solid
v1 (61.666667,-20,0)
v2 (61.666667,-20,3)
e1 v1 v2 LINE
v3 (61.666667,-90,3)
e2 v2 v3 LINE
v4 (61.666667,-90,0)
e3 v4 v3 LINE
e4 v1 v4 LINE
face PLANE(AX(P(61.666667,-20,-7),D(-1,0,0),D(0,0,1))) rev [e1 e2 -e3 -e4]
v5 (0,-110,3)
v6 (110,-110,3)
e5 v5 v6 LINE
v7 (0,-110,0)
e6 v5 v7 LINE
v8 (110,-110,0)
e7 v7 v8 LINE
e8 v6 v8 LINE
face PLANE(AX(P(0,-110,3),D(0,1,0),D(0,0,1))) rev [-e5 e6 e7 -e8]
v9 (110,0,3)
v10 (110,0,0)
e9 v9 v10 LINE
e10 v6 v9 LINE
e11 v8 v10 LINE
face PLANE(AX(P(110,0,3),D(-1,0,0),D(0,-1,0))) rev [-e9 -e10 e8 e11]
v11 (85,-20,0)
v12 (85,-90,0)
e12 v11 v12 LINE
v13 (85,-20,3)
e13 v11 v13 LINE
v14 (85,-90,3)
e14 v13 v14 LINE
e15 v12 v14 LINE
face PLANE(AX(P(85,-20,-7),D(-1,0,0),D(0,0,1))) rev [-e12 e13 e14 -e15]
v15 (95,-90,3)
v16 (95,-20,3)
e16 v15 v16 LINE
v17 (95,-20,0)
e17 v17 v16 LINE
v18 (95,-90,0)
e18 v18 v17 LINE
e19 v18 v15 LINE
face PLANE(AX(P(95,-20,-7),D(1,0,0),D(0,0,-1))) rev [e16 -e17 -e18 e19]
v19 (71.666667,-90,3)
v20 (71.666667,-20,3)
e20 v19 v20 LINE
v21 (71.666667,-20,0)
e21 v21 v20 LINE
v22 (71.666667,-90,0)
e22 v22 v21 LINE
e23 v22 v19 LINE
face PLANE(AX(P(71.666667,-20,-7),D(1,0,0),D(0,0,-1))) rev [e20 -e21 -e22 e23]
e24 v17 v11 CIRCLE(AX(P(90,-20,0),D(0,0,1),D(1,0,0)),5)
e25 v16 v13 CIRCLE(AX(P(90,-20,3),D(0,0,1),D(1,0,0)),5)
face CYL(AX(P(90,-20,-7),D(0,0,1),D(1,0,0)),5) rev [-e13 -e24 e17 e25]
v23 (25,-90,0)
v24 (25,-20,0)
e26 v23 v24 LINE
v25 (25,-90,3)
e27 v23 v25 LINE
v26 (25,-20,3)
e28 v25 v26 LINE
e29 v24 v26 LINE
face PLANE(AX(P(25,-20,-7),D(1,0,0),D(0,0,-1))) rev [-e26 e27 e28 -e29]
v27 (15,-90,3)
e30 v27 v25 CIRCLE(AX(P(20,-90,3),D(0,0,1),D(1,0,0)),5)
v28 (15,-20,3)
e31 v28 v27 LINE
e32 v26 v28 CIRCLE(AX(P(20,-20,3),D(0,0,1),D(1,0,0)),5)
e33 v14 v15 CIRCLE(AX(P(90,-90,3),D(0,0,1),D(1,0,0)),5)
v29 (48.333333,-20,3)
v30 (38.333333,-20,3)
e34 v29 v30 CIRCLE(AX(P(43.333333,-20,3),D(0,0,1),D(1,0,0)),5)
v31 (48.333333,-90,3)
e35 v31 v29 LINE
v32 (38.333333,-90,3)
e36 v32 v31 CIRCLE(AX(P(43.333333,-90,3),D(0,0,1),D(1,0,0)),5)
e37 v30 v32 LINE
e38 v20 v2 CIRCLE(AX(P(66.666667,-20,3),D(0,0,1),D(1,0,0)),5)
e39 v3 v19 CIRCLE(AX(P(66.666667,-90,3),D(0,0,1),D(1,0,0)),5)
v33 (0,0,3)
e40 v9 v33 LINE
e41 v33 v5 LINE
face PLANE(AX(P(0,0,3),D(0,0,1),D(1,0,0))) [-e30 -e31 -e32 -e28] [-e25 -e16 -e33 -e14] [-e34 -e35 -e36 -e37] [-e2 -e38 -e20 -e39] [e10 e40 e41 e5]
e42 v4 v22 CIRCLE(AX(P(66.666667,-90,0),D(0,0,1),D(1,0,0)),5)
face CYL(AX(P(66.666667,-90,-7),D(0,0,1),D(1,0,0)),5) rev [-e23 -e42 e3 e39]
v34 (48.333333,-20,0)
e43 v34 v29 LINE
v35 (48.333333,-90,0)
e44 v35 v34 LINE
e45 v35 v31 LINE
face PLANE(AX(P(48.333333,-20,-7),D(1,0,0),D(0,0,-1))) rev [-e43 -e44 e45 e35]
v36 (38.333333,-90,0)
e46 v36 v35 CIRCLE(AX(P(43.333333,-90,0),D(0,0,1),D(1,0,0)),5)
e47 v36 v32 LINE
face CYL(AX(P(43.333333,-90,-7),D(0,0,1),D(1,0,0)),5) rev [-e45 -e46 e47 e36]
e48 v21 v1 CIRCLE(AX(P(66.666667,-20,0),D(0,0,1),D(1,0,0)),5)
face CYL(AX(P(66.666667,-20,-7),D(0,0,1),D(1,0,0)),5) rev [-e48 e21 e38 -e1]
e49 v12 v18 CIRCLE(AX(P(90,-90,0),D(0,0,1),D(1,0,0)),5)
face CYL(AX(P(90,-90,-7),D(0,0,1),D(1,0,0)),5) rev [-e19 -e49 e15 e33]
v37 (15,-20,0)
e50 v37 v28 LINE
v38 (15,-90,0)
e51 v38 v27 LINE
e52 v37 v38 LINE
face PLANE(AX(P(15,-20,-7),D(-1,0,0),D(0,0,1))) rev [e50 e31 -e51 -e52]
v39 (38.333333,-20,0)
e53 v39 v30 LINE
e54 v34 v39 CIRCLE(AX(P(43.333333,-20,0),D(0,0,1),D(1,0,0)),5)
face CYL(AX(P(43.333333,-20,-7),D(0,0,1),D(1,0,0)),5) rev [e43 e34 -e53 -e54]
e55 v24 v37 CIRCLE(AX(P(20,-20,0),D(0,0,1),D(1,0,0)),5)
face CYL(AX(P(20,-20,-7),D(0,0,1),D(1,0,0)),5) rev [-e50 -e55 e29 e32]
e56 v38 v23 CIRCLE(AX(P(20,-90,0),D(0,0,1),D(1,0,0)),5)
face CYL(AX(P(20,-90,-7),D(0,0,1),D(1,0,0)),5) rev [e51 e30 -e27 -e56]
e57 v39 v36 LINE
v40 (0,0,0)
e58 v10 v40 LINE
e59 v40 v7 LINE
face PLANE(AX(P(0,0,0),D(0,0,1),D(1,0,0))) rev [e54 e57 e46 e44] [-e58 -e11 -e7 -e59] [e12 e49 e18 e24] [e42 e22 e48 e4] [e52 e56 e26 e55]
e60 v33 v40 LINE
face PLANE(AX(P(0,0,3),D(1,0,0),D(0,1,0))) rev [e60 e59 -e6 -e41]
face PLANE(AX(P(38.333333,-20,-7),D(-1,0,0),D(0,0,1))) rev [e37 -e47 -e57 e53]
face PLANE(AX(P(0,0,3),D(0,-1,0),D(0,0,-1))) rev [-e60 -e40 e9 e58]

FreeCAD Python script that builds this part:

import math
import FreeCAD as App
import Part
import Sketcher

V = App.Vector

doc = App.newDocument("Part")
params = doc.addObject("Spreadsheet::Sheet", "Params")
for row, (alias, value) in enumerate([
    ("sketch1_width", "110 mm"),
    ("pad1_length", "3 mm"),
    ("sketch2_radius", "5 mm"),
    ("sketch2_height", "70 mm"),
    ("pocket1_length", "10 mm"),
], start=1):
    params.set(f"A{row}", alias)
    params.set(f"B{row}", "=" + value)
    params.setAlias(f"B{row}", alias)

body = doc.addObject("PartDesign::Body", "Body")

# Sketch on XY plane
sketch1 = body.newObject("Sketcher::SketchObject", "Sketch")
sketch1.AttachmentSupport = (doc.getObject("XY_Plane"), [""])
sketch1.MapMode = "FlatFace"
sketch1.addGeometry(Part.LineSegment(V(0, 0, 0), V(0, -110, 0)), False)
sketch1.addGeometry(Part.LineSegment(V(0, -110, 0), V(110, -110, 0)), False)
sketch1.addGeometry(Part.LineSegment(V(110, -110, 0), V(110, 0, 0)), False)
sketch1.addGeometry(Part.LineSegment(V(110, 0, 0), V(0, 0, 0)), False)
sketch1.addConstraint(Sketcher.Constraint("Coincident", 0, 2, 1, 1))
sketch1.addConstraint(Sketcher.Constraint("Coincident", 1, 2, 2, 1))
sketch1.addConstraint(Sketcher.Constraint("Coincident", 2, 2, 3, 1))
sketch1.addConstraint(Sketcher.Constraint("Coincident", 3, 2, 0, 1))
sketch1.addConstraint(Sketcher.Constraint("Vertical", 0))
sketch1.addConstraint(Sketcher.Constraint("Horizontal", 1))
sketch1.addConstraint(Sketcher.Constraint("Vertical", 2))
sketch1.addConstraint(Sketcher.Constraint("Horizontal", 3))
sketch1.addConstraint(Sketcher.Constraint("Coincident", 3, 2, -1, 1))
sketch1.addConstraint(Sketcher.Constraint("Equal", 3, 0))
sketch1.addConstraint(Sketcher.Constraint("DistanceX", 1, 1, 1, 2, 110.0))
sketch1.setExpression("Constraints[10]", "Params.sketch1_width")
pad1 = body.newObject("PartDesign::Pad", "Pad")
pad1.Profile = sketch1
pad1.setExpression("Length", "Params.pad1_length")

# Sketch on XY plane
sketch2 = body.newObject("Sketcher::SketchObject", "Sketch001")
sketch2.AttachmentSupport = (doc.getObject("XY_Plane"), [""])
sketch2.MapMode = "FlatFace"
sketch2.AttachmentOffset = App.Placement(V(0, 0, 3), App.Rotation())
sketch2.addGeometry(Part.LineSegment(V(25, -90, 0), V(25, -20, 0)), False)
sketch2.addGeometry(Part.ArcOfCircle(Part.Circle(V(20, -20, 0), V(0, 0, 1), 5), math.radians(0), math.radians(180)), False)
sketch2.addGeometry(Part.LineSegment(V(15, -20, 0), V(15, -90, 0)), False)
sketch2.addGeometry(Part.ArcOfCircle(Part.Circle(V(20, -90, 0), V(0, 0, 1), 5), math.radians(180), math.radians(360)), False)
sketch2.addGeometry(Part.LineSegment(V(38, -20, 0), V(38, -90, 0)), False)
sketch2.addGeometry(Part.ArcOfCircle(Part.Circle(V(43, -90, 0), V(0, 0, 1), 5), math.radians(180), math.radians(360)), False)
sketch2.addGeometry(Part.LineSegment(V(48, -90, 0), V(48, -20, 0)), False)
sketch2.addGeometry(Part.ArcOfCircle(Part.Circle(V(43, -20, 0), V(0, 0, 1), 5), math.radians(0), math.radians(180)), False)
sketch2.addGeometry(Part.LineSegment(V(62, -20, 0), V(62, -90, 0)), False)
sketch2.addGeometry(Part.ArcOfCircle(Part.Circle(V(67, -90, 0), V(0, 0, 1), 5), math.radians(180), math.radians(360)), False)
sketch2.addGeometry(Part.LineSegment(V(72, -90, 0), V(72, -20, 0)), False)
sketch2.addGeometry(Part.ArcOfCircle(Part.Circle(V(67, -20, 0), V(0, 0, 1), 5), math.radians(0), math.radians(180)), False)
sketch2.addGeometry(Part.LineSegment(V(85, -20, 0), V(85, -90, 0)), False)
sketch2.addGeometry(Part.ArcOfCircle(Part.Circle(V(90, -90, 0), V(0, 0, 1), 5), math.radians(180), math.radians(360)), False)
sketch2.addGeometry(Part.LineSegment(V(95, -90, 0), V(95, -20, 0)), False)
sketch2.addGeometry(Part.ArcOfCircle(Part.Circle(V(90, -20, 0), V(0, 0, 1), 5), math.radians(0), math.radians(180)), False)
sketch2.addConstraint(Sketcher.Constraint("Tangent", 0, 2, 1, 1))
sketch2.addConstraint(Sketcher.Constraint("Tangent", 1, 2, 2, 1))
sketch2.addConstraint(Sketcher.Constraint("Tangent", 2, 2, 3, 1))
sketch2.addConstraint(Sketcher.Constraint("Tangent", 3, 2, 0, 1))
sketch2.addConstraint(Sketcher.Constraint("Tangent", 4, 2, 5, 1))
sketch2.addConstraint(Sketcher.Constraint("Tangent", 5, 2, 6, 1))
sketch2.addConstraint(Sketcher.Constraint("Tangent", 6, 2, 7, 1))
sketch2.addConstraint(Sketcher.Constraint("Tangent", 7, 2, 4, 1))
sketch2.addConstraint(Sketcher.Constraint("Tangent", 8, 2, 9, 1))
sketch2.addConstraint(Sketcher.Constraint("Tangent", 9, 2, 10, 1))
sketch2.addConstraint(Sketcher.Constraint("Tangent", 10, 2, 11, 1))
sketch2.addConstraint(Sketcher.Constraint("Tangent", 11, 2, 8, 1))
sketch2.addConstraint(Sketcher.Constraint("Tangent", 12, 2, 13, 1))
sketch2.addConstraint(Sketcher.Constraint("Tangent", 13, 2, 14, 1))
sketch2.addConstraint(Sketcher.Constraint("Tangent", 14, 2, 15, 1))
sketch2.addConstraint(Sketcher.Constraint("Tangent", 15, 2, 12, 1))
sketch2.addConstraint(Sketcher.Constraint("Vertical", 0))
sketch2.addConstraint(Sketcher.Constraint("Vertical", 2))
sketch2.addConstraint(Sketcher.Constraint("Vertical", 4))
sketch2.addConstraint(Sketcher.Constraint("Vertical", 6))
sketch2.addConstraint(Sketcher.Constraint("Vertical", 8))
sketch2.addConstraint(Sketcher.Constraint("Vertical", 10))
sketch2.addConstraint(Sketcher.Constraint("Vertical", 12))
sketch2.addConstraint(Sketcher.Constraint("Vertical", 14))
sketch2.addConstraint(Sketcher.Constraint("Equal", 3, 5))
sketch2.addConstraint(Sketcher.Constraint("Equal", 7, 9))
sketch2.addConstraint(Sketcher.Constraint("Equal", 11, 13))
sketch2.addConstraint(Sketcher.Constraint("Horizontal", 3, 3, 5, 3))
sketch2.addConstraint(Sketcher.Constraint("Horizontal", 1, 3, 7, 3))
sketch2.addConstraint(Sketcher.Constraint("Horizontal", 5, 3, 9, 3))
sketch2.addConstraint(Sketcher.Constraint("Horizontal", 7, 3, 11, 3))
sketch2.addConstraint(Sketcher.Constraint("Horizontal", 9, 3, 13, 3))
sketch2.addConstraint(Sketcher.Constraint("Horizontal", 11, 3, 15, 3))
sketch2.addConstraint(Sketcher.Constraint("Radius", 1, 5.0))
sketch2.addConstraint(Sketcher.Constraint("DistanceY", 0, 1, 0, 2, 70.0))
sketch2.addConstraint(Sketcher.Constraint("DistanceX", -1, 1, 1, 3, 20.0))
sketch2.addConstraint(Sketcher.Constraint("DistanceY", 1, 3, -1, 1, 20.0))
sketch2.addConstraint(Sketcher.Constraint("DistanceX", -1, 1, 13, 3, 90.0))
sketch2.addConstraint(Sketcher.Constraint("DistanceX", -1, 1, 5, 3, 43.333333))
sketch2.addConstraint(Sketcher.Constraint("DistanceX", -1, 1, 9, 3, 66.666667))
sketch2.setExpression("Constraints[33]", "Params.sketch2_radius")
sketch2.setExpression("Constraints[34]", "Params.sketch2_height")
pocket1 = body.newObject("PartDesign::Pocket", "Pocket")
pocket1.Profile = sketch2
pocket1.setExpression("Length", "Params.pocket1_length")

doc.recompute()
